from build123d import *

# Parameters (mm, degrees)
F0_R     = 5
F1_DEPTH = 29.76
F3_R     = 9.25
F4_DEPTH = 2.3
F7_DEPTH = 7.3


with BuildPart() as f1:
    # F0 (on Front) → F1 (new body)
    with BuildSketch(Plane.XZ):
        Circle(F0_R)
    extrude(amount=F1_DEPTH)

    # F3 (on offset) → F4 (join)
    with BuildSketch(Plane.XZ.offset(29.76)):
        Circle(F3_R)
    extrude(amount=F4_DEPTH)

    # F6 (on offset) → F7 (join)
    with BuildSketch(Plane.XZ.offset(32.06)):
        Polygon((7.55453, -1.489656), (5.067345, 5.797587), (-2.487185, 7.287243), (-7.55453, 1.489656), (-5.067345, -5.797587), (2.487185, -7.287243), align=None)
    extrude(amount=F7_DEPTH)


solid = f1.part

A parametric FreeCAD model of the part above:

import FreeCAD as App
import Part
import Sketcher


def add_polygon(sketch, points):
    """Adds a closed chain of lines whose ends are joined by coincident constraints."""
    first, n = sketch.GeometryCount, len(points)
    for a, b in zip(points, points[1:] + points[:1]):
        sketch.addGeometry(Part.LineSegment(App.Vector(*a, 0), App.Vector(*b, 0)), False)
    for i in range(n):
        sketch.addConstraint(Sketcher.Constraint("Coincident", first + i, 2, first + (i + 1) % n, 1))

doc = App.newDocument("Part")
body = doc.addObject("PartDesign::Body", "Body")

# Sketch on XZ plane
sketch1 = doc.addObject("Sketcher::SketchObject", "Sketch")
body.addObject(sketch1)
sketch1.AttachmentSupport = (doc.XZ_Plane, [""])
sketch1.MapMode = "FlatFace"
sketch1.addGeometry(Part.Circle(App.Vector(0, 0, 0), App.Vector(0, 0, 1), 5), False)
sketch1.addConstraint([
    Sketcher.Constraint("Coincident", 0, 3, -1, 1),
    Sketcher.Constraint("Diameter", 0, 10.0),
])
pad1 = doc.addObject("PartDesign::Pad", "Pad")
body.addObject(pad1)
pad1.Profile = sketch1
pad1.Length = 29.76

# Sketch on XZ plane
sketch2 = doc.addObject("Sketcher::SketchObject", "Sketch001")
body.addObject(sketch2)
sketch2.AttachmentSupport = (doc.XZ_Plane, [""])
sketch2.MapMode = "FlatFace"
sketch2.AttachmentOffset = App.Placement(App.Vector(0, 0, 29.76), App.Rotation())
sketch2.addGeometry(Part.Circle(App.Vector(0, 0, 0), App.Vector(0, 0, 1), 9.25), False)
sketch2.addConstraint([
    Sketcher.Constraint("Coincident", 0, 3, -1, 1),
    Sketcher.Constraint("Diameter", 0, 18.5),
])
pad2 = doc.addObject("PartDesign::Pad", "Pad001")
body.addObject(pad2)
pad2.Profile = sketch2
pad2.Length = 2.3

# Sketch on XZ plane
sketch3 = doc.addObject("Sketcher::SketchObject", "Sketch002")
body.addObject(sketch3)
sketch3.AttachmentSupport = (doc.XZ_Plane, [""])
sketch3.MapMode = "FlatFace"
sketch3.AttachmentOffset = App.Placement(App.Vector(0, 0, 32.06), App.Rotation())
add_polygon(sketch3, [(7.55453, -1.489656), (5.067345, 5.797587), (-2.487185, 7.287243), (-7.55453, 1.489656), (-5.067345, -5.797587), (2.487185, -7.287243)])  # lines 0-5
sketch3.addConstraint([
    Sketcher.Constraint("Symmetric", 0, 2, 3, 2, -1, 1),
    Sketcher.Constraint("Symmetric", 1, 2, 4, 2, -1, 1),
    Sketcher.Constraint("Symmetric", 2, 2, 5, 2, -1, 1),
    Sketcher.Constraint("Equal", 0, 1),
    Sketcher.Constraint("Equal", 1, 2),
    Sketcher.Constraint("Distance", 0, 7.7),
    Sketcher.Constraint("DistanceY", 4, 2, 2, 2, 8.776899),
    Sketcher.Constraint("DistanceX", 2, 2, -1, 1, 7.55453),
    Sketcher.Constraint("DistanceX", 1, 2, 0, 2, 7.55453),
])
pad3 = doc.addObject("PartDesign::Pad", "Pad002")
body.addObject(pad3)
pad3.Profile = sketch3
pad3.Length = 7.3

doc.recompute()
